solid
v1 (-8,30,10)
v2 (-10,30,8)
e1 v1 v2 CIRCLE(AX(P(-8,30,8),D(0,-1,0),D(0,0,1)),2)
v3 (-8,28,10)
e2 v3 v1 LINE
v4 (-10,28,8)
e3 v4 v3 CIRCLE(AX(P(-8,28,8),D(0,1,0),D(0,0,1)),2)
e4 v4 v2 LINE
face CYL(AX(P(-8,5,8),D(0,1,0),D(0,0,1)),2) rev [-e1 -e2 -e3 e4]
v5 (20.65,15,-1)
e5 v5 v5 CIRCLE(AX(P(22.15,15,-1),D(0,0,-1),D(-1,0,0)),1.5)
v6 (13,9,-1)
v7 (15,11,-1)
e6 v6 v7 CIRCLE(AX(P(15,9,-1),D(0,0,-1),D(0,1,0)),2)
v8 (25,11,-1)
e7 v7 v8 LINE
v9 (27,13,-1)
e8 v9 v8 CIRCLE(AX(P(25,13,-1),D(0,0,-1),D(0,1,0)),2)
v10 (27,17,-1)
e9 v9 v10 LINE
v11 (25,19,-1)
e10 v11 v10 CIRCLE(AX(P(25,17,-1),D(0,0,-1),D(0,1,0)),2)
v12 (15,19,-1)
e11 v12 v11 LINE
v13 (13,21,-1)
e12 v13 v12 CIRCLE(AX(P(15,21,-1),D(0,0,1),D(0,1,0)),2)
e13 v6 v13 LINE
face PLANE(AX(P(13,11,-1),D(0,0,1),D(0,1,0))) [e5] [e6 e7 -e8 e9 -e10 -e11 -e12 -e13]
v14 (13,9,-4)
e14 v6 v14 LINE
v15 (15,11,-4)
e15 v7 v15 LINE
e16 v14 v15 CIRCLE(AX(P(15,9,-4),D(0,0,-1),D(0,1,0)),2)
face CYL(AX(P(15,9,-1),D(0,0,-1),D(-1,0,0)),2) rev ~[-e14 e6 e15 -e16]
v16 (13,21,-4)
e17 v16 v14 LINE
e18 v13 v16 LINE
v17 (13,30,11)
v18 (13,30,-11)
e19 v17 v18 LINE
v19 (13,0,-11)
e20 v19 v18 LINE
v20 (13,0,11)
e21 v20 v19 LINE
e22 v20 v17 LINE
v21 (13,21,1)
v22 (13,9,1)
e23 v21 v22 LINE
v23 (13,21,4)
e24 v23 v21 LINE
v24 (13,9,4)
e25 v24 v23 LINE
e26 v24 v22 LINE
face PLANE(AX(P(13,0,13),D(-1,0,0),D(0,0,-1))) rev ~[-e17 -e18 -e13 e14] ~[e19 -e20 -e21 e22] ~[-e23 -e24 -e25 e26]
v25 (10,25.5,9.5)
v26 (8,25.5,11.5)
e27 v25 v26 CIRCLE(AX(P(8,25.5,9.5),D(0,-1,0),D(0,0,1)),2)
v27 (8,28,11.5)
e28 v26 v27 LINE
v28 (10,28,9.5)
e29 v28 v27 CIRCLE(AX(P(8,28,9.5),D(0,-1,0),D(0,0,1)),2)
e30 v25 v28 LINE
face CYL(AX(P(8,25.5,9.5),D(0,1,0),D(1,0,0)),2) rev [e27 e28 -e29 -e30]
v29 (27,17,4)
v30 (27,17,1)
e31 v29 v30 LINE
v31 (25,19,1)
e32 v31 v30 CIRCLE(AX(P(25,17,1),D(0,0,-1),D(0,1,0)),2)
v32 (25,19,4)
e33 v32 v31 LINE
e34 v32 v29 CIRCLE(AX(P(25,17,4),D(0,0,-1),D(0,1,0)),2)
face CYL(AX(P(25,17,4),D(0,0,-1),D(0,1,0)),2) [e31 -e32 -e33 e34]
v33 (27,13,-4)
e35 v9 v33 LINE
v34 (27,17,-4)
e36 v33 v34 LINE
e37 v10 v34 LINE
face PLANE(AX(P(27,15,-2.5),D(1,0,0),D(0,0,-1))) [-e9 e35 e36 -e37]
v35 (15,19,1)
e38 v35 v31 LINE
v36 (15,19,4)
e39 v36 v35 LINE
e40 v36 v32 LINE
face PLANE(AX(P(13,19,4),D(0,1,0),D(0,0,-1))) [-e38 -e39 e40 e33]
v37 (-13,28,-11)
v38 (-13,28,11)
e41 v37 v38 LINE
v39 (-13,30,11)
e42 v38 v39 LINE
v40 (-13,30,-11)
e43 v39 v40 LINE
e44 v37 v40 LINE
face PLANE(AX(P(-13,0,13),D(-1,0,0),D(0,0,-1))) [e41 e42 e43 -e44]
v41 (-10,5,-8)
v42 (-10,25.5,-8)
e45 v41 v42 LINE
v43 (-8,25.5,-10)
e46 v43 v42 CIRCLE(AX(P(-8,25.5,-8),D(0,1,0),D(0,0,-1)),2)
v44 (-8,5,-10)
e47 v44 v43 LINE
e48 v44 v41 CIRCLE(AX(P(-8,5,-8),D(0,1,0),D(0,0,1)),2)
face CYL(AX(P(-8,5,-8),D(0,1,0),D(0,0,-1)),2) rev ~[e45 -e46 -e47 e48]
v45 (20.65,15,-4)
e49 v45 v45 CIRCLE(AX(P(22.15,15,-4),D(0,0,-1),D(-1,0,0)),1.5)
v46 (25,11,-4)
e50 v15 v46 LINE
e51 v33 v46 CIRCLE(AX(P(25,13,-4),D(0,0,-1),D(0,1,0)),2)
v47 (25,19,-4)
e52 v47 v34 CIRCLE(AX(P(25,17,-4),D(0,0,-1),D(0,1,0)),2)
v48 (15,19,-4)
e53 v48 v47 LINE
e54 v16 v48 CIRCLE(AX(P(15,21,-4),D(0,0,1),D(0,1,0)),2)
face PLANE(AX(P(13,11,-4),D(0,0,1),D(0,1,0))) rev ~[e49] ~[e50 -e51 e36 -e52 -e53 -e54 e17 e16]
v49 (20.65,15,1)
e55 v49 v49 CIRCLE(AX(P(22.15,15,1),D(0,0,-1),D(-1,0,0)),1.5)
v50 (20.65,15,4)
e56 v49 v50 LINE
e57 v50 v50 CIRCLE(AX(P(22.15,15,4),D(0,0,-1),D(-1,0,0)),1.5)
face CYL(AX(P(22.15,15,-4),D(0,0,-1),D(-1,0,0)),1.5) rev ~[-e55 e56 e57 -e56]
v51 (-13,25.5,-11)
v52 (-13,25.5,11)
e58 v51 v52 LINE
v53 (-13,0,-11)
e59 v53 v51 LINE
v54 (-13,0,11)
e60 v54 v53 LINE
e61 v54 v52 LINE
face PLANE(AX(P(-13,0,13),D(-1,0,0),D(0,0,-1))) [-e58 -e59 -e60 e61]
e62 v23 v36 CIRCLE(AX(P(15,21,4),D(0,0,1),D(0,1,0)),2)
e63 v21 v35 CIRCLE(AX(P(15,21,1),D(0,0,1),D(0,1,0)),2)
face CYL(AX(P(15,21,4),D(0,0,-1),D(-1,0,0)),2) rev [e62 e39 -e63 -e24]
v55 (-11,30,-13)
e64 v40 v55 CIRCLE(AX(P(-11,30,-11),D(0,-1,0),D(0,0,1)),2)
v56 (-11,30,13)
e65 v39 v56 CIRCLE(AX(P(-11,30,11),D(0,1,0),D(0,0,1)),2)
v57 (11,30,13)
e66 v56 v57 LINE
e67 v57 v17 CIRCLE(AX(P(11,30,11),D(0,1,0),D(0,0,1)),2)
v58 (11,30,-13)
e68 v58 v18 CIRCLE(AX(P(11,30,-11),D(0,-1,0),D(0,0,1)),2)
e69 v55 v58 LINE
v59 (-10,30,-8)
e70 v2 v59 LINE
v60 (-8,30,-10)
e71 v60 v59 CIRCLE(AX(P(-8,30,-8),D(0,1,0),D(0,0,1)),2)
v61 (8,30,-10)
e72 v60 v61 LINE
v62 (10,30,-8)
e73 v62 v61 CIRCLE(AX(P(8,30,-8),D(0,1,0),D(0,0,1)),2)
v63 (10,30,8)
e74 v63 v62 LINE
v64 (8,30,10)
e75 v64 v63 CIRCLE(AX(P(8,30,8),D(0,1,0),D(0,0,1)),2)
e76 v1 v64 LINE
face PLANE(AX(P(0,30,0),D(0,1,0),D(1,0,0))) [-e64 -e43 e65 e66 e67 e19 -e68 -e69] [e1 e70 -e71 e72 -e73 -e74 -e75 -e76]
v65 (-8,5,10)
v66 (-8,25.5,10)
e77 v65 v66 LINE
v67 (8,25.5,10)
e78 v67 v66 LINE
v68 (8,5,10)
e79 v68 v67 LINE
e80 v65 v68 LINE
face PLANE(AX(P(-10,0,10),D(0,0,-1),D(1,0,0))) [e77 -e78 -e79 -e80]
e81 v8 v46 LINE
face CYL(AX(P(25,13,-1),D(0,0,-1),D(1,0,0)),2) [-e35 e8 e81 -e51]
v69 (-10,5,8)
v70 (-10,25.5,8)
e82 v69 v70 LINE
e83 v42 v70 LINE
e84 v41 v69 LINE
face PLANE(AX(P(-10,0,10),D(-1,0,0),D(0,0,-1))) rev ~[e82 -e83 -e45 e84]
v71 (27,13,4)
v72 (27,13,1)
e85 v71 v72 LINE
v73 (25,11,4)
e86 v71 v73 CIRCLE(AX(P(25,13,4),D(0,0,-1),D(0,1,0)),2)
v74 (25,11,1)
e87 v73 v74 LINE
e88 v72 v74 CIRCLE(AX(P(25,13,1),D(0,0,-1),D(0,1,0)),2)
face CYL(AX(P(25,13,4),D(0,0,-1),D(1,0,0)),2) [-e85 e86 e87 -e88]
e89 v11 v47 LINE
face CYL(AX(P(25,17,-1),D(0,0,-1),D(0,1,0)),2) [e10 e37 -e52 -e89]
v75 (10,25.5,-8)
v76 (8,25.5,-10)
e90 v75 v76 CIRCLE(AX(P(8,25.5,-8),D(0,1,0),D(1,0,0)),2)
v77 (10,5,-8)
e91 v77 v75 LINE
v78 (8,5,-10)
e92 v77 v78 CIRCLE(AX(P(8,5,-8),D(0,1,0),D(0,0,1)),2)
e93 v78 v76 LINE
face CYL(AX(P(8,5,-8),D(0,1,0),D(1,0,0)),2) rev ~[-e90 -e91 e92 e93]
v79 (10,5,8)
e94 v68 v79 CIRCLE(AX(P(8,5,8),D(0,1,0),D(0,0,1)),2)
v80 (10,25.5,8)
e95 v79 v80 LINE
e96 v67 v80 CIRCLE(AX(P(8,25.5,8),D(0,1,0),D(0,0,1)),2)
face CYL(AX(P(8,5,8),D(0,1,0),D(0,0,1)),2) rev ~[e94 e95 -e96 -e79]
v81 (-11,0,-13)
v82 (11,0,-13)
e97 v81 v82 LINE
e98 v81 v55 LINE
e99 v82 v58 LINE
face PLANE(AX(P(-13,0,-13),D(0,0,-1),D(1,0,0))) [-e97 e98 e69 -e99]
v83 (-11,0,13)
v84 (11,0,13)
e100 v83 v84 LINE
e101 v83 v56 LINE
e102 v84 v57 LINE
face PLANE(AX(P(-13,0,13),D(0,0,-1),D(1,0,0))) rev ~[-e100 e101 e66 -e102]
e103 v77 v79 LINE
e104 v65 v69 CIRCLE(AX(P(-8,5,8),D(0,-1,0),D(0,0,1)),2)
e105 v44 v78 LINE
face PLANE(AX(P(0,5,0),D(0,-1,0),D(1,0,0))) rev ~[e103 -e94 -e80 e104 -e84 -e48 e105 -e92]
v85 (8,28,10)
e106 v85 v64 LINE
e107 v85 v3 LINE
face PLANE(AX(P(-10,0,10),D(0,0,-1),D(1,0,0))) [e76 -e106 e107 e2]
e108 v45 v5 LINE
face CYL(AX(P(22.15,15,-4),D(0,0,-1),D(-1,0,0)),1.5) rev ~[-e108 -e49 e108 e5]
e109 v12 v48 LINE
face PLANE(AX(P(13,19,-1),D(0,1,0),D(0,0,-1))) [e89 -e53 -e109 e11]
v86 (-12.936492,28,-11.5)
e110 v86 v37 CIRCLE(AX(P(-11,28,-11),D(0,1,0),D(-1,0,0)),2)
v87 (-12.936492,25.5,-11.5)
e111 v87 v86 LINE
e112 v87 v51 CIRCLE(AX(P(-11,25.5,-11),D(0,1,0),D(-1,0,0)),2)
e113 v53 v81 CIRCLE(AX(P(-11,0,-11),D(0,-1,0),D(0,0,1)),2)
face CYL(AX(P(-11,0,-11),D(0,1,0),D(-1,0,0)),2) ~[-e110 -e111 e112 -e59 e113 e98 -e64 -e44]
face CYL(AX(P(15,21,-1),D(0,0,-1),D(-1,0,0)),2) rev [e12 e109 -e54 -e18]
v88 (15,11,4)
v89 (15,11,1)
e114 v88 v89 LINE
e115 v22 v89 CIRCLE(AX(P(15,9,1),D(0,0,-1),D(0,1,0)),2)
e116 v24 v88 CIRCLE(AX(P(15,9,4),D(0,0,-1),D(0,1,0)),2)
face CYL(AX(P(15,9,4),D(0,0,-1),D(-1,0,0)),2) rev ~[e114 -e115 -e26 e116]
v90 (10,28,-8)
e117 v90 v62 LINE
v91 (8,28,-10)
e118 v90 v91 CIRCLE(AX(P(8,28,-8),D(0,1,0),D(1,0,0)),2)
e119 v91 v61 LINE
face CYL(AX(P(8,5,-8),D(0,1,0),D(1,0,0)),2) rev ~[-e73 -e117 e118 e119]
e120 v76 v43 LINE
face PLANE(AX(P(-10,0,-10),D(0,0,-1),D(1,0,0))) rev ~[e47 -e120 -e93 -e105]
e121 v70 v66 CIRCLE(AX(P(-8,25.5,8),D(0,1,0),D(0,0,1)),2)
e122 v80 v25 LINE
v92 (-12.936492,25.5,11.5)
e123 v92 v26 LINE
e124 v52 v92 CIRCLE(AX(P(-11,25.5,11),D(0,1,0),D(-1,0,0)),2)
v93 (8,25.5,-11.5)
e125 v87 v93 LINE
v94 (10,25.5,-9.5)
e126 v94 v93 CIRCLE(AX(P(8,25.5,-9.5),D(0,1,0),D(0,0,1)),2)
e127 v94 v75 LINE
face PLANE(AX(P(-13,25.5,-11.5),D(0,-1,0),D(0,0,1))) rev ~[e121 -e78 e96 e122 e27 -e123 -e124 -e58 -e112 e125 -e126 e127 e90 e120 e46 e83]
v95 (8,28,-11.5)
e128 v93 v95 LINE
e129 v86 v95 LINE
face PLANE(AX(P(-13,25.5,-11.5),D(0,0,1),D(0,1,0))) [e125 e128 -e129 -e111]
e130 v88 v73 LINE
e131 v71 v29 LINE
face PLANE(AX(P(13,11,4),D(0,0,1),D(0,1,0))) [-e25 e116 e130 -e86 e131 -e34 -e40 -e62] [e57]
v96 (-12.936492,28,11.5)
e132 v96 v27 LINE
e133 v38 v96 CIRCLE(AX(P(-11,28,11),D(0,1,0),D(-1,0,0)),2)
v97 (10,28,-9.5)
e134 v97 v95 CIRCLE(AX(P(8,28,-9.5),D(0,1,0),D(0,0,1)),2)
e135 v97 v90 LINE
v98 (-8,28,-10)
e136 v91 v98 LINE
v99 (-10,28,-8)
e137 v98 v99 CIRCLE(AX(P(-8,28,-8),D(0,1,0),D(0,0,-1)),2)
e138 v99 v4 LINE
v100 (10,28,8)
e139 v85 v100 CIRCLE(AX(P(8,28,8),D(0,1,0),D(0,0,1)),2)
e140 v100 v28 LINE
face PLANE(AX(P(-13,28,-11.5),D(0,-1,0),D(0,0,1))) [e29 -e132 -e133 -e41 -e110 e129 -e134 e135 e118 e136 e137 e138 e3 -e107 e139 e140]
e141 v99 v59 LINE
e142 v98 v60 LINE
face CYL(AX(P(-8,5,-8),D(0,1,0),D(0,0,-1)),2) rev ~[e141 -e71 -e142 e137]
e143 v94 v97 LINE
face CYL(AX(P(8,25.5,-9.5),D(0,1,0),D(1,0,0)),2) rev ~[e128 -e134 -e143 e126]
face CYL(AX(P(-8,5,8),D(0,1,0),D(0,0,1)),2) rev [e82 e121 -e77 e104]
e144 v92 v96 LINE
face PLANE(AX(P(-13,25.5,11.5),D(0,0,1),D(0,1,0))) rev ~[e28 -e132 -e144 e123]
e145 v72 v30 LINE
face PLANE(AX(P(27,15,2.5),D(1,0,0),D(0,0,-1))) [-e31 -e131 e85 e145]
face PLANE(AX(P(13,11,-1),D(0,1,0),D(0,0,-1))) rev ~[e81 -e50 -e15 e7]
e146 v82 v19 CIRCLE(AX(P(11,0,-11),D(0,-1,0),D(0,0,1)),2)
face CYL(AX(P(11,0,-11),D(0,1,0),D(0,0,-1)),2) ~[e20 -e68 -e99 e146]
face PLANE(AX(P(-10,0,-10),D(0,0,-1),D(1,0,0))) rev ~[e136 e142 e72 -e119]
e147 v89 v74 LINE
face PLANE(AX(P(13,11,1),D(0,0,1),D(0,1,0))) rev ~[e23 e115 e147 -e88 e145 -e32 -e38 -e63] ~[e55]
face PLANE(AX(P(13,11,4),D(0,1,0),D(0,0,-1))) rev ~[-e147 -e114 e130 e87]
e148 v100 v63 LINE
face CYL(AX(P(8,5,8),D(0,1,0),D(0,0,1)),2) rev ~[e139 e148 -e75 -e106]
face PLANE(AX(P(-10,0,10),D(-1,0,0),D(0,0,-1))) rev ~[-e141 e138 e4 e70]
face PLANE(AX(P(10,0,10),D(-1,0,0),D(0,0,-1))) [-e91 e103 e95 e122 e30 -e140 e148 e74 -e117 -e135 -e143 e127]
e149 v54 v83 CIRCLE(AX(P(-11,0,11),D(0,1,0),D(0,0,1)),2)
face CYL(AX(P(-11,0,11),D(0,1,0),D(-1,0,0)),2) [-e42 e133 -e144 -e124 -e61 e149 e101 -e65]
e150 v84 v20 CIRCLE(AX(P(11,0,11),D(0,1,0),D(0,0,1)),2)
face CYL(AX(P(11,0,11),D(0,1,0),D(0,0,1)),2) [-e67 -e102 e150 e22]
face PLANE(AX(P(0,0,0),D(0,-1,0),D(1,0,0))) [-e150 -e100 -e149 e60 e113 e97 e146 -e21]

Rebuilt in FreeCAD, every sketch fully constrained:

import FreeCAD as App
import Part
import Sketcher


def edges_at(feature, points):
    """Names of the edges that pass closest to the given points."""
    edges = feature.Shape.Edges
    near = lambda p: min(range(len(edges)), key=lambda i: edges[i].distToShape(Part.Vertex(*p))[0])
    return sorted({f"Edge{near(p) + 1}" for p in points})


def add_polygon(sketch, points):
    """Adds a closed chain of lines whose ends are joined by coincident constraints."""
    first, n = sketch.GeometryCount, len(points)
    for a, b in zip(points, points[1:] + points[:1]):
        sketch.addGeometry(Part.LineSegment(App.Vector(*a, 0), App.Vector(*b, 0)), False)
    for i in range(n):
        sketch.addConstraint(Sketcher.Constraint("Coincident", first + i, 2, first + (i + 1) % n, 1))

doc = App.newDocument("Part")
body = doc.addObject("PartDesign::Body", "Body")

sketch1 = body.newObject("Sketcher::SketchObject", "Sketch")
sketch1.AttachmentSupport = (doc.getObject("XZ_Plane"), [""])
sketch1.MapMode = "FlatFace"
add_polygon(sketch1, [(-13, -13), (-13, 13), (13, 13), (13, -13)])
add_polygon(sketch1, [(10, 10), (-10, 10), (-10, -10), (10, -10)])
sketch1.addConstraint([
    Sketcher.Constraint("Vertical", 0),
    Sketcher.Constraint("Horizontal", 1),
    Sketcher.Constraint("Vertical", 2),
    Sketcher.Constraint("Horizontal", 3),
    Sketcher.Constraint("Horizontal", 4),
    Sketcher.Constraint("Vertical", 5),
    Sketcher.Constraint("Horizontal", 6),
    Sketcher.Constraint("Vertical", 7),
    Sketcher.Constraint("Symmetric", 0, 2, 2, 2, -1, 1),
    Sketcher.Constraint("Symmetric", 4, 2, 6, 2, -1, 1),
    Sketcher.Constraint("Equal", 3, 0),
    Sketcher.Constraint("Equal", 6, 5),
    Sketcher.Constraint("DistanceX", 1, 1, 1, 2, 26.0),
    Sketcher.Constraint("DistanceX", 4, 2, 4, 1, 20.0),
])
pad1 = body.newObject("PartDesign::Pad", "Pad")
pad1.Profile = sketch1
pad1.Length = 30
pad1.Reversed = True

sketch2 = body.newObject("Sketcher::SketchObject", "Sketch001")
sketch2.AttachmentSupport = (doc.getObject("XZ_Plane"), [""])
sketch2.MapMode = "FlatFace"
add_polygon(sketch2, [(-10, 10), (-10, -10), (10, -10), (10, 10)])
sketch2.addConstraint([
    Sketcher.Constraint("Vertical", 0),
    Sketcher.Constraint("Horizontal", 1),
    Sketcher.Constraint("Vertical", 2),
    Sketcher.Constraint("Horizontal", 3),
    Sketcher.Constraint("Symmetric", 0, 2, 2, 2, -1, 1),
    Sketcher.Constraint("Equal", 3, 0),
    Sketcher.Constraint("DistanceX", 1, 1, 1, 2, 20.0),
])
pad2 = body.newObject("PartDesign::Pad", "Pad001")
pad2.Profile = sketch2
pad2.Length = 5
pad2.Reversed = True
doc.recompute()

fillet = body.newObject("PartDesign::Fillet", "Fillet")
fillet.Base = (pad2, edges_at(pad2, [
    (-10, 17.5, -10),
    (-10, 17.5, 10),
    (10, 17.5, 10),
    (10, 17.5, -10),
    (-13, 15, -13),
    (13, 15, -13),
    (13, 15, 13),
    (-13, 15, 13),
]))
fillet.Radius = 2

sketch3 = body.newObject("Sketcher::SketchObject", "Sketch002")
sketch3.AttachmentSupport = (doc.getObject("YZ_Plane"), [""])
sketch3.MapMode = "FlatFace"
sketch3.AttachmentOffset = App.Placement(App.Vector(0, 0, 13), App.Rotation())
add_polygon(sketch3, [(19, 4), (11, 4), (11, 1), (19, 1)])
add_polygon(sketch3, [(19, -1), (11, -1), (11, -4), (19, -4)])
sketch3.addConstraint([
    Sketcher.Constraint("Horizontal", 0),
    Sketcher.Constraint("Vertical", 1),
    Sketcher.Constraint("Horizontal", 2),
    Sketcher.Constraint("Vertical", 3),
    Sketcher.Constraint("Horizontal", 4),
    Sketcher.Constraint("Vertical", 5),
    Sketcher.Constraint("Horizontal", 6),
    Sketcher.Constraint("Vertical", 7),
    Sketcher.Constraint("Symmetric", 1, 2, 4, 2, -1),
    Sketcher.Constraint("Symmetric", 3, 2, 6, 2, -1),
    Sketcher.Constraint("DistanceX", 0, 2, 0, 1, 8.0),
    Sketcher.Constraint("DistanceY", 1, 2, 1, 1, 3.0),
    Sketcher.Constraint("DistanceX", -1, 1, 0, 2, 11.0),
    Sketcher.Constraint("DistanceY", -1, 1, 0, 2, 4.0),
])
pad3 = body.newObject("PartDesign::Pad", "Pad002")
pad3.Profile = sketch3
pad3.Length = 14
doc.recompute()

fillet2 = body.newObject("PartDesign::Fillet", "Fillet001")
fillet2.Base = (pad3, edges_at(pad3, [
    (13, 11, 2.5),
    (13, 19, 2.5),
    (13, 19, -2.5),
    (13, 11, -2.5),
]))
fillet2.Radius = 2
doc.recompute()

fillet3 = body.newObject("PartDesign::Fillet", "Fillet002")
fillet3.Base = (fillet2, edges_at(fillet2, [
    (27, 11, 2.5),
    (27, 19, 2.5),
    (27, 19, -2.5),
    (27, 11, -2.5),
]))
fillet3.Radius = 2

sketch4 = body.newObject("Sketcher::SketchObject", "Sketch003")
sketch4.AttachmentSupport = (doc.getObject("XY_Plane"), [""])
sketch4.MapMode = "FlatFace"
sketch4.AttachmentOffset = App.Placement(App.Vector(0, 0, -4), App.Rotation())
sketch4.addGeometry(Part.Circle(App.Vector(22.1, 15, 0), App.Vector(0, 0, 1), 1.5), False)
sketch4.addConstraint([
    Sketcher.Constraint("Diameter", 0, 3.0),
    Sketcher.Constraint("DistanceY", -1, 1, 0, 3, 15.0),
    Sketcher.Constraint("DistanceX", -1, 1, 0, 3, 22.15),
])
pocket1 = body.newObject("PartDesign::Pocket", "Pocket")
pocket1.Profile = sketch4
pocket1.Type = "ThroughAll"
pocket1.Midplane = True

sketch5 = body.newObject("Sketcher::SketchObject", "Sketch004")
sketch5.AttachmentSupport = (doc.getObject("YZ_Plane"), [""])
sketch5.MapMode = "FlatFace"
sketch5.AttachmentOffset = App.Placement(App.Vector(0, 0, -13), App.Rotation())
add_polygon(sketch5, [(28, -11.5), (25.5, -11.5), (25.5, 11.5), (28, 11.5)])
sketch5.addConstraint([
    Sketcher.Constraint("Horizontal", 0),
    Sketcher.Constraint("Vertical", 1),
    Sketcher.Constraint("Horizontal", 2),
    Sketcher.Constraint("Vertical", 3),
    Sketcher.Constraint("DistanceY", 1, 1, 1, 2, 23.0),
    Sketcher.Constraint("DistanceX", 0, 2, 0, 1, 2.5),
    Sketcher.Constraint("DistanceX", -1, 1, 2, 2, 28.0),
    Sketcher.Constraint("DistanceY", 0, 2, -1, 1, 11.5),
])
pocket2 = body.newObject("PartDesign::Pocket", "Pocket001")
pocket2.Profile = sketch5
pocket2.Length = 23
pocket2.Reversed = True
doc.recompute()

fillet4 = body.newObject("PartDesign::Fillet", "Fillet003")
fillet4.Base = (pocket2, edges_at(pocket2, [(10, 26.75, 11.5), (10, 26.75, -11.5)]))
fillet4.Radius = 2

doc.recompute()
